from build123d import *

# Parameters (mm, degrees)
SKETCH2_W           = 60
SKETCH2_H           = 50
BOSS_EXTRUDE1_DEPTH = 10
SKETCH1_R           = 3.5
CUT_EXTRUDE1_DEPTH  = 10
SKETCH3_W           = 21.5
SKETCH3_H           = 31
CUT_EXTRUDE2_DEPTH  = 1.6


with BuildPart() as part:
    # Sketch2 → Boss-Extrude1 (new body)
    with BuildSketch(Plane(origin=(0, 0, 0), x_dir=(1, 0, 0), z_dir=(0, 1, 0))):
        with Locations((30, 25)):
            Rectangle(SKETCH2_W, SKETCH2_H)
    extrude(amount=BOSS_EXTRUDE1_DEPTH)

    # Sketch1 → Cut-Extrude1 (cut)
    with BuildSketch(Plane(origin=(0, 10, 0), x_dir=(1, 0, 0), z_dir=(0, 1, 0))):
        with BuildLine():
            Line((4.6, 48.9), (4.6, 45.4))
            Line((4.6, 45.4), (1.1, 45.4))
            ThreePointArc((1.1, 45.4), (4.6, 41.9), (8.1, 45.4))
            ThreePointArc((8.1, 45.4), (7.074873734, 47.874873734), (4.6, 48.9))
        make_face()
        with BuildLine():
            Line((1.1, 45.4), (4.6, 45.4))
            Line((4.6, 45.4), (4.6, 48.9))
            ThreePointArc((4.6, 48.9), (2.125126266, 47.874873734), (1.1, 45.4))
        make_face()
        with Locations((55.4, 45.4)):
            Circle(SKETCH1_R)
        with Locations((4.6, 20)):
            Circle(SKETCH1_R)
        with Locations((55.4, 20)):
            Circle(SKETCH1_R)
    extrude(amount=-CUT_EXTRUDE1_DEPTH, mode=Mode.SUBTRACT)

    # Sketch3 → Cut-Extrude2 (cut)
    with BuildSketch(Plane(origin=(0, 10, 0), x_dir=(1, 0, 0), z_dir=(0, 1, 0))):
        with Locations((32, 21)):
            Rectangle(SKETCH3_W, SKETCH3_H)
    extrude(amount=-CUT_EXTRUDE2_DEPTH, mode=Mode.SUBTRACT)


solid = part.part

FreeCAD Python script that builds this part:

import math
import FreeCAD as App
import Part
import Sketcher
from FreeCAD import Vector


def add_polygon(sketch, points):
    """Adds a closed chain of lines whose ends are joined by coincident constraints."""
    first, n = sketch.GeometryCount, len(points)
    for a, b in zip(points, points[1:] + points[:1]):
        sketch.addGeometry(Part.LineSegment(App.Vector(*a, 0), App.Vector(*b, 0)), False)
    for i in range(n):
        sketch.addConstraint(Sketcher.Constraint("Coincident", first + i, 2, first + (i + 1) % n, 1))

doc = App.newDocument("Part")
params = doc.addObject("Spreadsheet::Sheet", "Params")
for row, (alias, value) in enumerate([
    ("sketch1_width", "60 mm"),
    ("sketch1_height", "50 mm"),
    ("pad1_length", "10 mm"),
    ("sketch2_diameter", "7 mm"),
    ("pocket1_length", "10 mm"),
    ("sketch3_height", "31 mm"),
    ("sketch3_width", "21.5 mm"),
    ("pocket2_length", "1.6 mm"),
], start=1):
    params.set(f"A{row}", alias)
    params.set(f"B{row}", "=" + value)
    params.setAlias(f"B{row}", alias)

body = doc.addObject("PartDesign::Body", "Body")

sketch1 = body.newObject("Sketcher::SketchObject", "Sketch")
sketch1.AttachmentSupport = (doc.getObject("XZ_Plane"), [""])
sketch1.MapMode = "FlatFace"
add_polygon(sketch1, [(0, -50), (0, 0), (60, 0), (60, -50)])
sketch1.addConstraint([
    Sketcher.Constraint("Vertical", 0),
    Sketcher.Constraint("Horizontal", 1),
    Sketcher.Constraint("Vertical", 2),
    Sketcher.Constraint("Horizontal", 3),
    Sketcher.Constraint("Coincident", 0, 2, -1, 1),
    Sketcher.Constraint("DistanceX", 1, 1, 1, 2, 60.0),
    Sketcher.Constraint("DistanceY", 0, 1, 0, 2, 50.0),
])
sketch1.setExpression("Constraints[9]", "Params.sketch1_width")
sketch1.setExpression("Constraints[10]", "Params.sketch1_height")
pad1 = body.newObject("PartDesign::Pad", "Pad")
pad1.Profile = sketch1
pad1.setExpression("Length", "Params.pad1_length")
pad1.Reversed = True

sketch2 = body.newObject("Sketcher::SketchObject", "Sketch001")
sketch2.AttachmentSupport = (doc.getObject("XZ_Plane"), [""])
sketch2.MapMode = "FlatFace"
sketch2.AttachmentOffset = App.Placement(Vector(0, 0, -10), App.Rotation())
sketch2.addGeometry([
    Part.ArcOfCircle(Part.Circle(Vector(4.6, -45.4, 0), Vector(0, 0, 1), 3.5), math.radians(0), math.radians(180)),
    Part.ArcOfCircle(Part.Circle(Vector(4.6, -45.4, 0), Vector(0, 0, 1), 3.5), math.radians(-90), math.radians(0)),
    Part.ArcOfCircle(Part.Circle(Vector(4.6, -45.4, 0), Vector(0, 0, 1), 3.5), math.radians(-180), math.radians(-90)),
    Part.Circle(Vector(55.4, -45.4, 0), Vector(0, 0, 1), 3.5),
    Part.Circle(Vector(4.6, -20, 0), Vector(0, 0, 1), 3.5),
    Part.Circle(Vector(55.4, -20, 0), Vector(0, 0, 1), 3.5),
], False)
sketch2.addConstraint([
    Sketcher.Constraint("Tangent", 0, 1, 1, 2),
    Sketcher.Constraint("Tangent", 1, 1, 2, 2),
    Sketcher.Constraint("Tangent", 2, 1, 0, 2),
    Sketcher.Constraint("Equal", 2, 3),
    Sketcher.Constraint("Equal", 3, 4),
    Sketcher.Constraint("Equal", 4, 5),
    Sketcher.Constraint("Horizontal", 2, 3, 3, 3),
    Sketcher.Constraint("Horizontal", 4, 3, 5, 3),
    Sketcher.Constraint("Horizontal", 3, 3, 0, 1),
    Sketcher.Constraint("Horizontal", 0, 1, 2, 1),
    Sketcher.Constraint("Vertical", 2, 3, 4, 3),
    Sketcher.Constraint("Vertical", 3, 3, 5, 3),
    Sketcher.Constraint("Vertical", 4, 3, 1, 1),
    Sketcher.Constraint("Diameter", 3, 7.0),
    Sketcher.Constraint("DistanceY", 4, 3, -1, 1, 20.0),
    Sketcher.Constraint("DistanceX", -1, 1, 0, 3, 4.6),
    Sketcher.Constraint("DistanceY", 0, 3, -1, 1, 45.4),
    Sketcher.Constraint("DistanceX", -1, 1, 3, 3, 55.4),
])
sketch2.setExpression("Constraints[13]", "Params.sketch2_diameter")
pocket1 = body.newObject("PartDesign::Pocket", "Pocket")
pocket1.Profile = sketch2
pocket1.setExpression("Length", "Params.pocket1_length")
pocket1.Reversed = True

sketch3 = body.newObject("Sketcher::SketchObject", "Sketch002")
sketch3.AttachmentSupport = (doc.getObject("XZ_Plane"), [""])
sketch3.MapMode = "FlatFace"
sketch3.AttachmentOffset = App.Placement(Vector(0, 0, -10), App.Rotation())
add_polygon(sketch3, [(21, -36), (21, -6), (43, -6), (43, -36)])
sketch3.addConstraint([
    Sketcher.Constraint("Vertical", 0),
    Sketcher.Constraint("Horizontal", 1),
    Sketcher.Constraint("Vertical", 2),
    Sketcher.Constraint("Horizontal", 3),
    Sketcher.Constraint("DistanceY", 0, 1, 0, 2, 31.0),
    Sketcher.Constraint("DistanceX", 1, 1, 1, 2, 21.5),
    Sketcher.Constraint("DistanceY", 0, 2, -1, 1, 5.5),
    Sketcher.Constraint("DistanceX", -1, 1, 0, 2, 21.25),
])
sketch3.setExpression("Constraints[8]", "Params.sketch3_height")
sketch3.setExpression("Constraints[9]", "Params.sketch3_width")
pocket2 = body.newObject("PartDesign::Pocket", "Pocket001")
pocket2.Profile = sketch3
pocket2.setExpression("Length", "Params.pocket2_length")
pocket2.Reversed = True

doc.recompute()
